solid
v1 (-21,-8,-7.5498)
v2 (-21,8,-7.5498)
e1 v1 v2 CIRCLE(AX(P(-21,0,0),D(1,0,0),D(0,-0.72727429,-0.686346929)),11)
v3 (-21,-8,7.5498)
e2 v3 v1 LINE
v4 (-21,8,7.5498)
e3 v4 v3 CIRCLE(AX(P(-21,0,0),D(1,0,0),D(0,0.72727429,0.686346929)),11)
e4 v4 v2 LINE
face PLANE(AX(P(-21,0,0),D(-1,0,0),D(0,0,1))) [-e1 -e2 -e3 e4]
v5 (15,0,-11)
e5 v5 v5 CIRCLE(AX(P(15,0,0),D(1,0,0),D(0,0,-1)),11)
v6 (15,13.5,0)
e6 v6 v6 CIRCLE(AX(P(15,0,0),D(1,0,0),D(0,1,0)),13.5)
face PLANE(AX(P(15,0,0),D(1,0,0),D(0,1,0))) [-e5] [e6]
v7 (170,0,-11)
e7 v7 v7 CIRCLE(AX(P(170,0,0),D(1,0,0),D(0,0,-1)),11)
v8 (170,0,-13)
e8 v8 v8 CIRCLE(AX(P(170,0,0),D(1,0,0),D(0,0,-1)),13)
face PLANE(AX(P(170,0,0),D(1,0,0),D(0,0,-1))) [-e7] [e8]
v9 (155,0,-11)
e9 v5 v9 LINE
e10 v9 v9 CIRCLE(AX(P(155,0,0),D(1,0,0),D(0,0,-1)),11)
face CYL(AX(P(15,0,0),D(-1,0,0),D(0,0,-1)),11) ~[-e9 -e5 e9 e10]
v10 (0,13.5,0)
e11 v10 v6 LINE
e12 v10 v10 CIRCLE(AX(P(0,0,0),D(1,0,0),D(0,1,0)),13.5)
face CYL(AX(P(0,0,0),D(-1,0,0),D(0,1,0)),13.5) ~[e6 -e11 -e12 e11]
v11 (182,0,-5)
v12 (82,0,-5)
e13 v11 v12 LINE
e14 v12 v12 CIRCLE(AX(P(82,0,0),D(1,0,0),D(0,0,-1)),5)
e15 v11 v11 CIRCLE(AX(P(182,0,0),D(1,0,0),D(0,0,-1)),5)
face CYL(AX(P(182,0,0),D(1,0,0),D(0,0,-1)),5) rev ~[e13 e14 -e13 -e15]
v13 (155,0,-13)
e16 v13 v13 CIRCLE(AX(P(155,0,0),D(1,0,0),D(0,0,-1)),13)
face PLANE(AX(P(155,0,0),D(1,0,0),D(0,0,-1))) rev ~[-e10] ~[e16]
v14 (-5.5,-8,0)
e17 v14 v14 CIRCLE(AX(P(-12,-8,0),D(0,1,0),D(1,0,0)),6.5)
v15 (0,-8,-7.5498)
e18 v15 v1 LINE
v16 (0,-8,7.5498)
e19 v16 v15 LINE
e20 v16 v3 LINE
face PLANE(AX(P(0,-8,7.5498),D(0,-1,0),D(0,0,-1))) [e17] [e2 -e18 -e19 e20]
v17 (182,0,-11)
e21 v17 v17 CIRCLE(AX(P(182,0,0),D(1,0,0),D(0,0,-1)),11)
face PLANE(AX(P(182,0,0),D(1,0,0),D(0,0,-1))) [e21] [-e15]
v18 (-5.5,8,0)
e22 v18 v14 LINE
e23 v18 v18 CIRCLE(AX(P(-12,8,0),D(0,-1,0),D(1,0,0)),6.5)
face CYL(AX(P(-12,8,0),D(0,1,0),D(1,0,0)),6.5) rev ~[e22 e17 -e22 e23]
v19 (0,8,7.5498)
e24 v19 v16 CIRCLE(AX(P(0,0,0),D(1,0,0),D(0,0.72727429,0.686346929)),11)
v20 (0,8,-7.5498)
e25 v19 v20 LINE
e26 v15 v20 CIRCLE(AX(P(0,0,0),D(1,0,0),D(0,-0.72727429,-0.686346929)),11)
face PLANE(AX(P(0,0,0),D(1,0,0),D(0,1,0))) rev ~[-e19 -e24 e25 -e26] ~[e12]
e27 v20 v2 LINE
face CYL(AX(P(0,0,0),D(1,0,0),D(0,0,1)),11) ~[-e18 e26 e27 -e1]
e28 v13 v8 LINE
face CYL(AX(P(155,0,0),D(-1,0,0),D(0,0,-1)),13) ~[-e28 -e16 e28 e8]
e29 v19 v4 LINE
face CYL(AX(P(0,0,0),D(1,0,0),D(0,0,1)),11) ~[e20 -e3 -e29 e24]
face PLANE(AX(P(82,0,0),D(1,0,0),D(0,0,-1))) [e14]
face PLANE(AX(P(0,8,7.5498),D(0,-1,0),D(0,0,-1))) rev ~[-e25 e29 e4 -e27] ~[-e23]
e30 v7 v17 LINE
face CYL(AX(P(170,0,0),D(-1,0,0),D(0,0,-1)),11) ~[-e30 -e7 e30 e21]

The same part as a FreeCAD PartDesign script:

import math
import FreeCAD as App
import Part
import Sketcher
from FreeCAD import Vector

doc = App.newDocument("Part")
params = doc.addObject("Spreadsheet::Sheet", "Params")
for row, (alias, value) in enumerate([
    ("sketch1_diameter", "27 mm"),
    ("pad1_length", "15 mm"),
    ("sketch2_diameter", "22 mm"),
    ("pad2_length", "140 mm"),
    ("sketch3_diameter", "26 mm"),
    ("pad3_length", "15 mm"),
    ("sketch4_diameter", "22 mm"),
    ("pad4_length", "12 mm"),
    ("sketch5_radius", "11 mm"),
    ("pad5_length", "21 mm"),
    ("sketch6_diameter", "13 mm"),
    ("sketch7_diameter", "10 mm"),
    ("pocket2_length", "100 mm"),
], start=1):
    params.set(f"A{row}", alias)
    params.set(f"B{row}", "=" + value)
    params.setAlias(f"B{row}", alias)

body = doc.addObject("PartDesign::Body", "Body")

# Sketch on YZ plane
sketch1 = doc.addObject("Sketcher::SketchObject", "Sketch")
body.addObject(sketch1)
sketch1.AttachmentSupport = (doc.YZ_Plane, [""])
sketch1.MapMode = "FlatFace"
sketch1.addGeometry(Part.Circle(Vector(0, 0, 0), Vector(0, 0, 1), 13.5), False)
sketch1.addConstraint([
    Sketcher.Constraint("Coincident", 0, 3, -1, 1),
    Sketcher.Constraint("Diameter", 0, 27.0),
])
sketch1.setExpression("Constraints[1]", "Params.sketch1_diameter")
pad1 = doc.addObject("PartDesign::Pad", "Pad")
body.addObject(pad1)
pad1.Profile = sketch1
pad1.setExpression("Length", "Params.pad1_length")

# Sketch on YZ plane
sketch2 = doc.addObject("Sketcher::SketchObject", "Sketch001")
body.addObject(sketch2)
sketch2.AttachmentSupport = (doc.YZ_Plane, [""])
sketch2.MapMode = "FlatFace"
sketch2.AttachmentOffset = App.Placement(Vector(0, 0, 15), App.Rotation())
sketch2.addGeometry(Part.Circle(Vector(0, 0, 0), Vector(0, 0, 1), 11), False)
sketch2.addConstraint([
    Sketcher.Constraint("Coincident", 0, 3, -1, 1),
    Sketcher.Constraint("Diameter", 0, 22.0),
])
sketch2.setExpression("Constraints[1]", "Params.sketch2_diameter")
pad2 = doc.addObject("PartDesign::Pad", "Pad001")
body.addObject(pad2)
pad2.Profile = sketch2
pad2.setExpression("Length", "Params.pad2_length")

# Sketch on YZ plane
sketch3 = doc.addObject("Sketcher::SketchObject", "Sketch002")
body.addObject(sketch3)
sketch3.AttachmentSupport = (doc.YZ_Plane, [""])
sketch3.MapMode = "FlatFace"
sketch3.AttachmentOffset = App.Placement(Vector(0, 0, 155), App.Rotation())
sketch3.addGeometry(Part.Circle(Vector(0, 0, 0), Vector(0, 0, 1), 13), False)
sketch3.addConstraint([
    Sketcher.Constraint("Coincident", 0, 3, -1, 1),
    Sketcher.Constraint("Diameter", 0, 26.0),
])
sketch3.setExpression("Constraints[1]", "Params.sketch3_diameter")
pad3 = doc.addObject("PartDesign::Pad", "Pad002")
body.addObject(pad3)
pad3.Profile = sketch3
pad3.setExpression("Length", "Params.pad3_length")

# Sketch on YZ plane
sketch4 = doc.addObject("Sketcher::SketchObject", "Sketch003")
body.addObject(sketch4)
sketch4.AttachmentSupport = (doc.YZ_Plane, [""])
sketch4.MapMode = "FlatFace"
sketch4.AttachmentOffset = App.Placement(Vector(0, 0, 170), App.Rotation())
sketch4.addGeometry(Part.Circle(Vector(0, 0, 0), Vector(0, 0, 1), 11), False)
sketch4.addConstraint([
    Sketcher.Constraint("Coincident", 0, 3, -1, 1),
    Sketcher.Constraint("Diameter", 0, 22.0),
])
sketch4.setExpression("Constraints[1]", "Params.sketch4_diameter")
pad4 = doc.addObject("PartDesign::Pad", "Pad003")
body.addObject(pad4)
pad4.Profile = sketch4
pad4.setExpression("Length", "Params.pad4_length")

# Sketch on YZ plane
sketch5 = doc.addObject("Sketcher::SketchObject", "Sketch004")
body.addObject(sketch5)
sketch5.AttachmentSupport = (doc.YZ_Plane, [""])
sketch5.MapMode = "FlatFace"
sketch5.addGeometry([
    Part.ArcOfCircle(Part.Circle(Vector(0, 0, 0), Vector(0, 0, 1), 11), math.radians(43.341628), math.radians(136.658372)),
    Part.LineSegment(Vector(8, 7.5498, 0), Vector(8, -7.5498, 0)),
    Part.ArcOfCircle(Part.Circle(Vector(0, 0, 0), Vector(0, 0, 1), 11), math.radians(-136.658372), math.radians(-43.341628)),
    Part.LineSegment(Vector(-8, -7.5498, 0), Vector(-8, 7.5498, 0)),
], False)
sketch5.addConstraint([
    Sketcher.Constraint("Coincident", 0, 1, 1, 1),
    Sketcher.Constraint("Coincident", 1, 2, 2, 2),
    Sketcher.Constraint("Coincident", 2, 1, 3, 1),
    Sketcher.Constraint("Coincident", 3, 2, 0, 2),
    Sketcher.Constraint("Vertical", 1),
    Sketcher.Constraint("Vertical", 3),
    Sketcher.Constraint("Coincident", 0, 3, -1, 1),
    Sketcher.Constraint("Coincident", 2, 3, -1, 1),
    Sketcher.Constraint("Equal", 0, 2),
    Sketcher.Constraint("Horizontal", 1, 2, 2, 1),
    Sketcher.Constraint("Radius", 0, 11.0),
    Sketcher.Constraint("DistanceX", -1, 1, 0, 1, 8.0),
])
sketch5.setExpression("Constraints[10]", "Params.sketch5_radius")
pad5 = doc.addObject("PartDesign::Pad", "Pad004")
body.addObject(pad5)
pad5.Profile = sketch5
pad5.setExpression("Length", "Params.pad5_length")
pad5.Reversed = True

# Sketch on XZ plane
sketch6 = doc.addObject("Sketcher::SketchObject", "Sketch005")
body.addObject(sketch6)
sketch6.AttachmentSupport = (doc.XZ_Plane, [""])
sketch6.MapMode = "FlatFace"
sketch6.AttachmentOffset = App.Placement(Vector(0, 0, -8), App.Rotation())
sketch6.addGeometry(Part.Circle(Vector(-12, 0, 0), Vector(0, 0, 1), 6.5), False)
sketch6.addConstraint([
    Sketcher.Constraint("PointOnObject", 0, 3, -1),
    Sketcher.Constraint("Diameter", 0, 13.0),
    Sketcher.Constraint("DistanceX", 0, 3, -1, 1, 12.0),
])
sketch6.setExpression("Constraints[1]", "Params.sketch6_diameter")
pocket1 = doc.addObject("PartDesign::Pocket", "Pocket")
body.addObject(pocket1)
pocket1.Profile = sketch6
pocket1.Type = "ThroughAll"
pocket1.Reversed = True

# Sketch on YZ plane
sketch7 = doc.addObject("Sketcher::SketchObject", "Sketch006")
body.addObject(sketch7)
sketch7.AttachmentSupport = (doc.YZ_Plane, [""])
sketch7.MapMode = "FlatFace"
sketch7.AttachmentOffset = App.Placement(Vector(0, 0, 182), App.Rotation())
sketch7.addGeometry(Part.Circle(Vector(0, 0, 0), Vector(0, 0, 1), 5), False)
sketch7.addConstraint([
    Sketcher.Constraint("Coincident", 0, 3, -1, 1),
    Sketcher.Constraint("Diameter", 0, 10.0),
])
sketch7.setExpression("Constraints[1]", "Params.sketch7_diameter")
pocket2 = doc.addObject("PartDesign::Pocket", "Pocket001")
body.addObject(pocket2)
pocket2.Profile = sketch7
pocket2.setExpression("Length", "Params.pocket2_length")

doc.recompute()
